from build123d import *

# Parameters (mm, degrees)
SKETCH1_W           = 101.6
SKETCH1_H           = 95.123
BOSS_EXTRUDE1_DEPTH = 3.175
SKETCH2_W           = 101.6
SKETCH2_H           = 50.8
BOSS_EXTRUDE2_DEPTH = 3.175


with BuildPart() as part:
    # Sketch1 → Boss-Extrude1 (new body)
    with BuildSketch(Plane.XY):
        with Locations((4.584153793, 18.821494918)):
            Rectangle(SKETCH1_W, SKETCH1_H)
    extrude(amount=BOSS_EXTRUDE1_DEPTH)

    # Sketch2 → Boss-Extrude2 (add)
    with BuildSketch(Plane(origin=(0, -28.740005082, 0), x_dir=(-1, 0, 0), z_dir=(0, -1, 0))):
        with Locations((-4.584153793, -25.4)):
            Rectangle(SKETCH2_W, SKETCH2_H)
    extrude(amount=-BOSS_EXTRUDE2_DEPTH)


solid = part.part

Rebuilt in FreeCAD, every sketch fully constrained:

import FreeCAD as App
import Part
import Sketcher
from FreeCAD import Vector
Q = App.Units.Quantity


def add_polygon(sketch, points):
    """Adds a closed chain of lines whose ends are joined by coincident constraints."""
    first, n = sketch.GeometryCount, len(points)
    for a, b in zip(points, points[1:] + points[:1]):
        sketch.addGeometry(Part.LineSegment(App.Vector(*a, 0), App.Vector(*b, 0)), False)
    for i in range(n):
        sketch.addConstraint(Sketcher.Constraint("Coincident", first + i, 2, first + (i + 1) % n, 1))

doc = App.newDocument("Part")
body = doc.addObject("PartDesign::Body", "Body")

# Sketch on XY plane
sketch1 = doc.addObject("Sketcher::SketchObject", "Sketch")
body.addObject(sketch1)
sketch1.AttachmentSupport = (doc.XY_Plane, [""])
sketch1.MapMode = "FlatFace"
add_polygon(sketch1, [(-46.215846, 66.382995), (-46.215846, -28.740005), (55.384154, -28.740005), (55.384154, 66.382995)])  # lines 0-3
sketch1.addConstraint([
    Sketcher.Constraint("Vertical", 0),
    Sketcher.Constraint("Horizontal", 1),
    Sketcher.Constraint("Vertical", 2),
    Sketcher.Constraint("Horizontal", 3),
    Sketcher.Constraint("DistanceX", 1, 1, 1, 2, Q("4 in")),
    Sketcher.Constraint("DistanceY", 0, 2, 0, 1, Q("3.745 in")),
    Sketcher.Constraint("DistanceX", 0, 2, -1, 1, Q("46.215846 mm")),
    Sketcher.Constraint("DistanceY", 0, 2, -1, 1, Q("28.740005 mm")),
])
pad1 = doc.addObject("PartDesign::Pad", "Pad")
body.addObject(pad1)
pad1.Profile = sketch1
pad1.Length = Q("0.125 in")

# Sketch on XZ plane
sketch2 = doc.addObject("Sketcher::SketchObject", "Sketch001")
body.addObject(sketch2)
sketch2.AttachmentSupport = (doc.XZ_Plane, [""])
sketch2.MapMode = "FlatFace"
sketch2.AttachmentOffset = App.Placement(Vector(0, 0, 28.740005), App.Rotation())
add_polygon(sketch2, [(55.384154, 0), (55.384154, 50.8), (-46.215846, 50.8), (-46.215846, 0)])  # lines 0-3
sketch2.addConstraint([
    Sketcher.Constraint("Vertical", 0),
    Sketcher.Constraint("Horizontal", 1),
    Sketcher.Constraint("Vertical", 2),
    Sketcher.Constraint("Horizontal", 3),
    Sketcher.Constraint("PointOnObject", 2, 2, -1),
    Sketcher.Constraint("DistanceX", 1, 2, 1, 1, Q("4 in")),
    Sketcher.Constraint("DistanceY", 0, 1, 0, 2, Q("2 in")),
    Sketcher.Constraint("DistanceX", -1, 1, 0, 2, Q("55.384154 mm")),
])
pad2 = doc.addObject("PartDesign::Pad", "Pad001")
body.addObject(pad2)
pad2.Profile = sketch2
pad2.Length = Q("0.125 in")
pad2.Reversed = True

doc.recompute()
